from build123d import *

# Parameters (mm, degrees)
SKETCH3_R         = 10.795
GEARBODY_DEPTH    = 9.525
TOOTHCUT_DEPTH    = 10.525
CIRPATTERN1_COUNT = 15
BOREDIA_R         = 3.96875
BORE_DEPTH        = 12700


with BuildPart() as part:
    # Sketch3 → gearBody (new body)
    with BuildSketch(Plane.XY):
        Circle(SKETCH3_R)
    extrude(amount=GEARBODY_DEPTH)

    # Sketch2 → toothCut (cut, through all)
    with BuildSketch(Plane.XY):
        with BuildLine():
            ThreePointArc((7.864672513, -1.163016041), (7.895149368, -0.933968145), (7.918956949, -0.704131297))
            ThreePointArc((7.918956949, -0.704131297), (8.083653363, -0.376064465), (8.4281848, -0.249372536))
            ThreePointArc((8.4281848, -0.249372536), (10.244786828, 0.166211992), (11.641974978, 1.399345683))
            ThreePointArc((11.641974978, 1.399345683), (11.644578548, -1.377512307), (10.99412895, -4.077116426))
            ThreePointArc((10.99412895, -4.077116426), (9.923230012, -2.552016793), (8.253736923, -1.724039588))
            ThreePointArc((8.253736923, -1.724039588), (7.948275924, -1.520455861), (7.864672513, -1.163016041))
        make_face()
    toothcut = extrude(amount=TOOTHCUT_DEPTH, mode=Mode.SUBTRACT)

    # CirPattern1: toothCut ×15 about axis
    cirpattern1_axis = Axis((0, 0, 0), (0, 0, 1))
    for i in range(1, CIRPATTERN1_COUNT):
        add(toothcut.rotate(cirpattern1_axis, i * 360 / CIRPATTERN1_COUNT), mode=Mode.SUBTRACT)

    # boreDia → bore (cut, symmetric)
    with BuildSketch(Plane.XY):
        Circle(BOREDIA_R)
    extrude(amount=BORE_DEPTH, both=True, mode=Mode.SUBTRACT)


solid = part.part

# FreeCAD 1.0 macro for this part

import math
import FreeCAD as App
import Part
import Sketcher
Q = App.Units.Quantity

doc = App.newDocument("Part")
params = doc.addObject("Spreadsheet::Sheet", "Params")
for row, (alias, value) in enumerate([
    ("sketch1_diameter", "0.85 in"),
    ("pad1_length", "0.375 in"),
    ("sketch2_radius", "0.313 in"),
    ("sketch3_diameter", "0.3125 in"),
    ("pocket2_length", "1000 in"),
], start=1):
    params.set(f"A{row}", alias)
    params.set(f"B{row}", "=" + value)
    params.setAlias(f"B{row}", alias)

body = doc.addObject("PartDesign::Body", "Body")

# Sketch on XY plane
sketch1 = doc.addObject("Sketcher::SketchObject", "Sketch")
body.addObject(sketch1)
sketch1.AttachmentSupport = (doc.XY_Plane, [""])
sketch1.MapMode = "FlatFace"
sketch1.addGeometry(Part.Circle(App.Vector(0, 0, 0), App.Vector(0, 0, 1), 10.795), False)
sketch1.addConstraint([
    Sketcher.Constraint("Coincident", 0, 3, -1, 1),
    Sketcher.Constraint("Diameter", 0, Q("0.85 in")),
])
sketch1.setExpression("Constraints[1]", "Params.sketch1_diameter")
pad1 = doc.addObject("PartDesign::Pad", "Pad")
body.addObject(pad1)
pad1.Profile = sketch1
pad1.setExpression("Length", "Params.pad1_length")

# Sketch on XY plane
sketch2 = doc.addObject("Sketcher::SketchObject", "Sketch001")
body.addObject(sketch2)
sketch2.AttachmentSupport = (doc.XY_Plane, [""])
sketch2.MapMode = "FlatFace"
sketch2.addGeometry([
    Part.ArcOfCircle(Part.Circle(App.Vector(-0.000001, 0, 0), App.Vector(0, 0, 1), 7.950201), math.radians(-8.411851), math.radians(-5.081216)),  # 0
    Part.ArcOfCircle(Part.Circle(App.Vector(8.358413, -1.23603, 0), App.Vector(0, 0, 1), 0.49911), math.radians(171.588149), math.radians(257.89372)),  # 1
    Part.ArcOfCircle(Part.Circle(App.Vector(7.461092, -5.419421, 0), App.Vector(0, 0, 1), 3.779435), math.radians(20.803261), math.radians(77.89372)),  # 2
    Part.ArcOfCircle(Part.Circle(App.Vector(0, 0, 0), App.Vector(0, 0, 1), 11.725773), math.radians(-20.347041), math.radians(6.853974)),  # 3
    Part.ArcOfCircle(Part.Circle(App.Vector(8.519653, 3.528956, 0), App.Vector(0, 0, 1), 3.779435), math.radians(-91.386787), math.radians(-34.296328)),  # 4
    Part.ArcOfCircle(Part.Circle(App.Vector(8.416106, -0.748336, 0), App.Vector(0, 0, 1), 0.49911), math.radians(88.613213), math.radians(174.918784)),  # 5
], False)
sketch2.addConstraint([
    Sketcher.Constraint("Tangent", 0, 1, 1, 1),
    Sketcher.Constraint("Tangent", 1, 2, 2, 2),
    Sketcher.Constraint("Coincident", 2, 1, 3, 1),
    Sketcher.Constraint("Coincident", 3, 2, 4, 2),
    Sketcher.Constraint("Tangent", 4, 1, 5, 1),
    Sketcher.Constraint("Tangent", 5, 2, 0, 2),
    Sketcher.Constraint("Coincident", 0, 3, -1, 1),
    Sketcher.Constraint("Coincident", 3, 3, -1, 1),
    Sketcher.Constraint("Equal", 2, 4),
    Sketcher.Constraint("Equal", 1, 5),
    Sketcher.Constraint("Radius", 0, Q("0.313 in")),
    Sketcher.Constraint("Radius", 1, 0.49911),
    Sketcher.Constraint("Radius", 2, 3.779435),
    Sketcher.Constraint("Radius", 3, 11.725773),
    Sketcher.Constraint("DistanceY", 2, 1, 0, 1, 2.9141),
    Sketcher.Constraint("DistanceY", 1, 3, 5, 2, 0.531898),
    Sketcher.Constraint("DistanceY", 1, 3, -1, 1, 1.23603),
    Sketcher.Constraint("DistanceX", 1, 3, 4, 3, 0.16124),
])
sketch2.setExpression("Constraints[10]", "Params.sketch2_radius")
pocket1 = doc.addObject("PartDesign::Pocket", "Pocket")
body.addObject(pocket1)
pocket1.Profile = sketch2
pocket1.Type = "ThroughAll"
pocket1.Reversed = True
doc.recompute()

polarpattern = doc.addObject("PartDesign::PolarPattern", "PolarPattern")
body.addObject(polarpattern)
polarpattern.Originals = [pocket1]
polarpattern.Axis = (doc.Z_Axis, [""])
polarpattern.Angle = 360
polarpattern.Occurrences = 15
body.Tip = polarpattern

# Sketch on XY plane
sketch3 = doc.addObject("Sketcher::SketchObject", "Sketch002")
body.addObject(sketch3)
sketch3.AttachmentSupport = (doc.XY_Plane, [""])
sketch3.MapMode = "FlatFace"
sketch3.addGeometry(Part.Circle(App.Vector(0, 0, 0), App.Vector(0, 0, 1), 3.96875), False)
sketch3.addConstraint([
    Sketcher.Constraint("Coincident", 0, 3, -1, 1),
    Sketcher.Constraint("Diameter", 0, Q("0.3125 in")),
])
sketch3.setExpression("Constraints[1]", "Params.sketch3_diameter")
pocket2 = doc.addObject("PartDesign::Pocket", "Pocket001")
body.addObject(pocket2)
pocket2.Profile = sketch3
pocket2.setExpression("Length", "Params.pocket2_length")
pocket2.Midplane = True

doc.recompute()
